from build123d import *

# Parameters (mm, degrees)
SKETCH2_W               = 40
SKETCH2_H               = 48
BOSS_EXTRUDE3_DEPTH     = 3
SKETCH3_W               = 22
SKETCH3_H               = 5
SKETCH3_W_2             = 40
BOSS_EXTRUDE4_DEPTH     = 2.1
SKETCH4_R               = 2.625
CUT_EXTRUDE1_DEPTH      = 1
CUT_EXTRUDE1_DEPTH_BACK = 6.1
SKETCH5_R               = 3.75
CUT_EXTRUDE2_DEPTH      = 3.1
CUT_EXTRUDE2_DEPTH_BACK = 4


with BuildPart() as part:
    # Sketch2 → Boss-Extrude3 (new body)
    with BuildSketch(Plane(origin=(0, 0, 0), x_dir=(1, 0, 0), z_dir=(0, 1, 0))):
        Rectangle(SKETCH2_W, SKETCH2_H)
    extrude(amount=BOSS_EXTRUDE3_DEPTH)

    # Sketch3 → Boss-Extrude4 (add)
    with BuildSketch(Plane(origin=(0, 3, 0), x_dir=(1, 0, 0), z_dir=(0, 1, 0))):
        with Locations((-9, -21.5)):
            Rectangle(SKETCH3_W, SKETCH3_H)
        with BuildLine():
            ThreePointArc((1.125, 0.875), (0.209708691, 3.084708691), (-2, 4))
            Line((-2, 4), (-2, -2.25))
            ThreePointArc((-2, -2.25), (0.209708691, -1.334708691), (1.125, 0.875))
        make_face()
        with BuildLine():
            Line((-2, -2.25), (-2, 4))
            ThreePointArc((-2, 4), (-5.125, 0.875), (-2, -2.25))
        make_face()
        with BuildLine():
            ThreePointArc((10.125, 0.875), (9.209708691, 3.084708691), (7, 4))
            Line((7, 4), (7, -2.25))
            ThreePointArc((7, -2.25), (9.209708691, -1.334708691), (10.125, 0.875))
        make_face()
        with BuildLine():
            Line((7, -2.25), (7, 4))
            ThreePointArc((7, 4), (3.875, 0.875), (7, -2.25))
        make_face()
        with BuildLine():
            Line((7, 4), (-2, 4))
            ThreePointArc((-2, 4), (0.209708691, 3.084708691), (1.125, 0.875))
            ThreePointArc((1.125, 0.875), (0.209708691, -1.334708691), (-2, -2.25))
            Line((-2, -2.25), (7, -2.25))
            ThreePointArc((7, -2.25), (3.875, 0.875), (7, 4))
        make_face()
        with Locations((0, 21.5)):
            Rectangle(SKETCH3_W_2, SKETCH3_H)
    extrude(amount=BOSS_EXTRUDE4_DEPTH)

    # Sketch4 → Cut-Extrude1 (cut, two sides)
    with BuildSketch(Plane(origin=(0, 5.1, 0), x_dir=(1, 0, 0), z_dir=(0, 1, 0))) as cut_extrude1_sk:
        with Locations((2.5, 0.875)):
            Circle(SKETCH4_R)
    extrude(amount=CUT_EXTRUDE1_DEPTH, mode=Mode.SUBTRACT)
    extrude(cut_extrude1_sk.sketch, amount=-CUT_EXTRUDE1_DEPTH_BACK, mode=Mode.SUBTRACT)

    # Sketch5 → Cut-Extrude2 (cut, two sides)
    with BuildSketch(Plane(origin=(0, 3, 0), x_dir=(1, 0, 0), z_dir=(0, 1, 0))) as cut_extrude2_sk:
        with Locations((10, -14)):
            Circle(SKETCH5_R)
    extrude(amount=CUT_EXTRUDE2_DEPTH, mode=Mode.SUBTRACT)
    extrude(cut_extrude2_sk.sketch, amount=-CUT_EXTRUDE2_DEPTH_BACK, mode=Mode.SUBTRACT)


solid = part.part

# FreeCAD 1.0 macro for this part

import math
import FreeCAD as App
import Part
import Sketcher

V = App.Vector
Q = App.Units.Quantity


def add_polygon(sketch, points):
    """Adds a closed chain of lines whose ends are joined by coincident constraints."""
    first, n = sketch.GeometryCount, len(points)
    for a, b in zip(points, points[1:] + points[:1]):
        sketch.addGeometry(Part.LineSegment(App.Vector(*a, 0), App.Vector(*b, 0)), False)
    for i in range(n):
        sketch.addConstraint(Sketcher.Constraint("Coincident", first + i, 2, first + (i + 1) % n, 1))

doc = App.newDocument("Part")
body = doc.addObject("PartDesign::Body", "Body")

sketch1 = doc.addObject("Sketcher::SketchObject", "Sketch")
body.addObject(sketch1)
sketch1.AttachmentSupport = (doc.XZ_Plane, [""])
sketch1.MapMode = "FlatFace"
add_polygon(sketch1, [(-20, -24), (-20, 24), (20, 24), (20, -24)])
sketch1.addConstraint([
    Sketcher.Constraint("Vertical", 0),
    Sketcher.Constraint("Horizontal", 1),
    Sketcher.Constraint("Vertical", 2),
    Sketcher.Constraint("Horizontal", 3),
    Sketcher.Constraint("Symmetric", 0, 2, 2, 2, -1, 1),
    Sketcher.Constraint("DistanceX", 1, 1, 1, 2, Q("40 mm")),
    Sketcher.Constraint("DistanceY", 0, 1, 0, 2, Q("48 mm")),
])
pad1 = doc.addObject("PartDesign::Pad", "Pad")
body.addObject(pad1)
pad1.Profile = sketch1
pad1.Length = 3
pad1.Reversed = True

sketch2 = doc.addObject("Sketcher::SketchObject", "Sketch001")
body.addObject(sketch2)
sketch2.AttachmentSupport = (doc.XZ_Plane, [""])
sketch2.MapMode = "FlatFace"
sketch2.AttachmentOffset = App.Placement(V(0, 0, -3), App.Rotation())
add_polygon(sketch2, [(-20, 19), (-20, 24), (2, 24), (2, 19)])
sketch2.addGeometry(Part.LineSegment(V(-2, 2.2, 0), V(7, 2.2, 0)), False)
sketch2.addGeometry(Part.ArcOfCircle(Part.Circle(V(7, -0.9, 0), V(0, 0, 1), 3.1), math.radians(0), math.radians(90)), False)
sketch2.addGeometry(Part.ArcOfCircle(Part.Circle(V(7, -0.9, 0), V(0, 0, 1), 3.1), math.radians(-90), math.radians(0)), False)
sketch2.addGeometry(Part.LineSegment(V(7, -4, 0), V(-2, -4, 0)), False)
sketch2.addGeometry(Part.ArcOfCircle(Part.Circle(V(-2, -0.9, 0), V(0, 0, 1), 3.1), math.radians(90), math.radians(270)), False)
add_polygon(sketch2, [(-20, -24), (-20, -19), (20, -19), (20, -24)])
sketch2.addConstraint([
    Sketcher.Constraint("Tangent", 4, 2, 5, 2),
    Sketcher.Constraint("Tangent", 5, 1, 6, 2),
    Sketcher.Constraint("Tangent", 6, 1, 7, 1),
    Sketcher.Constraint("Tangent", 7, 2, 8, 2),
    Sketcher.Constraint("Tangent", 8, 1, 4, 1),
    Sketcher.Constraint("Vertical", 0),
    Sketcher.Constraint("Horizontal", 1),
    Sketcher.Constraint("Vertical", 2),
    Sketcher.Constraint("Horizontal", 3),
    Sketcher.Constraint("Horizontal", 4),
    Sketcher.Constraint("Horizontal", 7),
    Sketcher.Constraint("Vertical", 9),
    Sketcher.Constraint("Horizontal", 10),
    Sketcher.Constraint("Vertical", 11),
    Sketcher.Constraint("Horizontal", 12),
    Sketcher.Constraint("Equal", 5, 6),
    Sketcher.Constraint("Symmetric", 3, 2, 10, 2, -1, 1),
    Sketcher.Constraint("Symmetric", 0, 2, 12, 2, -1),
    Sketcher.Constraint("Horizontal", 8, 3, 5, 1),
    Sketcher.Constraint("DistanceX", 1, 1, 1, 2, Q("22 mm")),
    Sketcher.Constraint("DistanceX", 4, 1, 4, 2, Q("9 mm")),
    Sketcher.Constraint("DistanceX", 10, 1, 10, 2, Q("40 mm")),
    Sketcher.Constraint("DistanceY", 0, 1, 0, 2, Q("5 mm")),
    Sketcher.Constraint("DistanceX", -1, 1, 5, 3, Q("7 mm")),
    Sketcher.Constraint("DistanceY", -1, 1, 0, 2, Q("24 mm")),
    Sketcher.Constraint("DistanceY", 6, 1, -1, 1, Q("4 mm")),
    Sketcher.Constraint("Radius", 5, Q("3.125 mm")),
])
pad2 = doc.addObject("PartDesign::Pad", "Pad001")
body.addObject(pad2)
pad2.Profile = sketch2
pad2.Length = 2.1
pad2.Reversed = True

sketch3 = doc.addObject("Sketcher::SketchObject", "Sketch002")
body.addObject(sketch3)
sketch3.AttachmentSupport = (doc.XZ_Plane, [""])
sketch3.MapMode = "FlatFace"
sketch3.AttachmentOffset = App.Placement(V(0, 0, -5.1), App.Rotation())
sketch3.addGeometry(Part.Circle(V(2.5, -0.9, 0), V(0, 0, 1), 2.6), False)
sketch3.addConstraint([
    Sketcher.Constraint("Diameter", 0, Q("5.25 mm")),
    Sketcher.Constraint("DistanceX", -1, 1, 0, 3, Q("2.5 mm")),
    Sketcher.Constraint("DistanceY", 0, 3, -1, 1, Q("0.875 mm")),
])
pocket1 = doc.addObject("PartDesign::Pocket", "Pocket")
body.addObject(pocket1)
pocket1.Profile = sketch3
pocket1.Type = "ThroughAll"
pocket1.Midplane = True

sketch4 = doc.addObject("Sketcher::SketchObject", "Sketch003")
body.addObject(sketch4)
sketch4.AttachmentSupport = (doc.XZ_Plane, [""])
sketch4.MapMode = "FlatFace"
sketch4.AttachmentOffset = App.Placement(V(0, 0, -3), App.Rotation())
sketch4.addGeometry(Part.Circle(V(10, 14, 0), V(0, 0, 1), 3.8), False)
sketch4.addConstraint([
    Sketcher.Constraint("Diameter", 0, Q("7.5 mm")),
    Sketcher.Constraint("DistanceX", -1, 1, 0, 3, Q("10 mm")),
    Sketcher.Constraint("DistanceY", -1, 1, 0, 3, Q("14 mm")),
])
pocket2 = doc.addObject("PartDesign::Pocket", "Pocket001")
body.addObject(pocket2)
pocket2.Profile = sketch4
pocket2.Type = "ThroughAll"
pocket2.Midplane = True

doc.recompute()
